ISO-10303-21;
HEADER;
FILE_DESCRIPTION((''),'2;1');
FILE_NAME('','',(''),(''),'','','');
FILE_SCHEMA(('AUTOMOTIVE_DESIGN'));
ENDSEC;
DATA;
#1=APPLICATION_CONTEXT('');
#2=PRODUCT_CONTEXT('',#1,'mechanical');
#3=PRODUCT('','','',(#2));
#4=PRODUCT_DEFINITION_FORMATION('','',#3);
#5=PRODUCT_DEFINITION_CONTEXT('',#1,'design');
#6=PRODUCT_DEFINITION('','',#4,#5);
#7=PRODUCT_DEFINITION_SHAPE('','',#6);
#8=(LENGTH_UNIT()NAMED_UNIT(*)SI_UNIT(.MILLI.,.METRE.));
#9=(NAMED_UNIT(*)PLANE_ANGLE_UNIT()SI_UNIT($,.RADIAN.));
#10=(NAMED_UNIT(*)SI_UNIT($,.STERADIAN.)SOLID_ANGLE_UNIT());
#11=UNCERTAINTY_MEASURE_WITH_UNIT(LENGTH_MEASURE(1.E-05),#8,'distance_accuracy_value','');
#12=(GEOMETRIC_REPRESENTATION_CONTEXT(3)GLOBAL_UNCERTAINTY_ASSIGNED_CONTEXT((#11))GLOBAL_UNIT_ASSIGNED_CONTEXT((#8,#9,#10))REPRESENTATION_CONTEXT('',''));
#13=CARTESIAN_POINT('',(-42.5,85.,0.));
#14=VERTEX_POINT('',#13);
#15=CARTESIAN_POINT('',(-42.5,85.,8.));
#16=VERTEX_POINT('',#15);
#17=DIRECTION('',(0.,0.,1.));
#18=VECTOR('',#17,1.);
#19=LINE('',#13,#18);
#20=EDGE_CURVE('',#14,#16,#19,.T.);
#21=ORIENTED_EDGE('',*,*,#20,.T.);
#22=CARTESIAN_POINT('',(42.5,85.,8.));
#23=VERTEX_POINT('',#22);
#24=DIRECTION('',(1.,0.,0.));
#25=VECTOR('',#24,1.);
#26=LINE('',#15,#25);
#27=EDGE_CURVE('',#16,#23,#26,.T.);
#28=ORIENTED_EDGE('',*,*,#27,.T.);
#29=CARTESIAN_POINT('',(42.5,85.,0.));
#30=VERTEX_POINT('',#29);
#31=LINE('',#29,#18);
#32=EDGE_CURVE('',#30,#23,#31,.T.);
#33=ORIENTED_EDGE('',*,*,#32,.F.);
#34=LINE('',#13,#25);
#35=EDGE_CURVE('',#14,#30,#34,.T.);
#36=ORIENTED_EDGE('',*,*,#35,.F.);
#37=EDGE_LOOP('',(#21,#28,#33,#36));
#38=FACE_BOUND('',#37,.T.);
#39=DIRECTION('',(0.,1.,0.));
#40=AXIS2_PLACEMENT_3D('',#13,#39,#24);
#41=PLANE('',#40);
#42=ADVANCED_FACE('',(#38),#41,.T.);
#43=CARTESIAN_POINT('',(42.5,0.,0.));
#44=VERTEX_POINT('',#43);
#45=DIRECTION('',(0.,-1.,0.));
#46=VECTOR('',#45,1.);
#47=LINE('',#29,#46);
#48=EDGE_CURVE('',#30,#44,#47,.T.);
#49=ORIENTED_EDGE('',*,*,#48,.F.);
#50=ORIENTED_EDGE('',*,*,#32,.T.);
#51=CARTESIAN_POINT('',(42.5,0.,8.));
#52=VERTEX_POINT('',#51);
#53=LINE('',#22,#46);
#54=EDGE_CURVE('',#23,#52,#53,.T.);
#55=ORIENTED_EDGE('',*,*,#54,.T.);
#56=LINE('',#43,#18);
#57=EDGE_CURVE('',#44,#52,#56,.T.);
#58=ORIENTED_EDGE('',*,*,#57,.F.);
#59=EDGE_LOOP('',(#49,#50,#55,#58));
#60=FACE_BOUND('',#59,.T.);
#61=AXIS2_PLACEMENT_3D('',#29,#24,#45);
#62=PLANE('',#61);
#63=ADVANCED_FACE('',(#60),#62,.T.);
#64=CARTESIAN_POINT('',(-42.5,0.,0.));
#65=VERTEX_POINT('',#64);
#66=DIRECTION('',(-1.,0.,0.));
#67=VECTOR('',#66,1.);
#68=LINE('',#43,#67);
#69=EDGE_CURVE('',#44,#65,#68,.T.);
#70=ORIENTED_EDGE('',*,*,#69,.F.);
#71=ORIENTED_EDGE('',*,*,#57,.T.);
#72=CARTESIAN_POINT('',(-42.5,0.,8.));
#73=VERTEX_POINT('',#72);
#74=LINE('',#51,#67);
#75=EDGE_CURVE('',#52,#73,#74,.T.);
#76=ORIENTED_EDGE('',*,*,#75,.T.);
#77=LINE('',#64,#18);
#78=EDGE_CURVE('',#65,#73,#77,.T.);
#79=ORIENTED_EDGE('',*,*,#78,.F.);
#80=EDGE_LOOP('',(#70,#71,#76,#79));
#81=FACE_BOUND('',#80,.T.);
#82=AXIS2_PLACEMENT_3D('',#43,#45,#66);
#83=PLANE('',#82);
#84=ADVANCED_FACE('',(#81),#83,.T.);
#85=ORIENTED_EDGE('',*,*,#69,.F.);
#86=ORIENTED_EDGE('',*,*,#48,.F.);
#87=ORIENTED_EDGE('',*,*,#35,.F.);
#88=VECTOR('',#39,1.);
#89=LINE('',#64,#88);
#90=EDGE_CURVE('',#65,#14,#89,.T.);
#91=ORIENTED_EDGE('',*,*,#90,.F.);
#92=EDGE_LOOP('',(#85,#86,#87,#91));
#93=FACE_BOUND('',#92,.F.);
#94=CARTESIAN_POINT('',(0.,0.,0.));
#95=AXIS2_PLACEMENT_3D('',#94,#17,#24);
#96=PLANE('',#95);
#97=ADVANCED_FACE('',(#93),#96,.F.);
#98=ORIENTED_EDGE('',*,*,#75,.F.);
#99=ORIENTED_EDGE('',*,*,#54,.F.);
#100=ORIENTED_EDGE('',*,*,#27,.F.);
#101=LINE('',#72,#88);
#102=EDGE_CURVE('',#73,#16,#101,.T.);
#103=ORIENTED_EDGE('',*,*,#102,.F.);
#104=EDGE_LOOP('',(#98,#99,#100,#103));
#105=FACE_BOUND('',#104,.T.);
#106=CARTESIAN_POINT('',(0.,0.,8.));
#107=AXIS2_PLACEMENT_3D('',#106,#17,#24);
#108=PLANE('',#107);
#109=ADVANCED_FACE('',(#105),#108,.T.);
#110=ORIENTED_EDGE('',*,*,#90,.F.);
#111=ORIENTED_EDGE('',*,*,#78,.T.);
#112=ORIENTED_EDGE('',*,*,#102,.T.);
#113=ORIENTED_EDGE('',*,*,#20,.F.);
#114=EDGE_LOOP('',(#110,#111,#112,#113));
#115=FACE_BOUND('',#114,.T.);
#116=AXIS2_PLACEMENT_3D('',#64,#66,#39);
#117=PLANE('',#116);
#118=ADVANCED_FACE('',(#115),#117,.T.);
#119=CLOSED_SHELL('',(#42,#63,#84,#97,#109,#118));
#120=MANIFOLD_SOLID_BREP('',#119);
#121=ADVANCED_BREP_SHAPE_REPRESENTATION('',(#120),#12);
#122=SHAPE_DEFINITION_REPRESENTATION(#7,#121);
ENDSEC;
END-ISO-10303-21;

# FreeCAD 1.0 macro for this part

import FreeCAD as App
import Part
import Sketcher
Q = App.Units.Quantity


def add_polygon(sketch, points):
    """Adds a closed chain of lines whose ends are joined by coincident constraints."""
    first, n = sketch.GeometryCount, len(points)
    for a, b in zip(points, points[1:] + points[:1]):
        sketch.addGeometry(Part.LineSegment(App.Vector(*a, 0), App.Vector(*b, 0)), False)
    for i in range(n):
        sketch.addConstraint(Sketcher.Constraint("Coincident", first + i, 2, first + (i + 1) % n, 1))

doc = App.newDocument("Part")
body = doc.addObject("PartDesign::Body", "Body")

sketch1 = doc.addObject("Sketcher::SketchObject", "Sketch")
body.addObject(sketch1)
sketch1.AttachmentSupport = (doc.XY_Plane, [""])
sketch1.MapMode = "FlatFace"
add_polygon(sketch1, [(42, 85), (-42, 85), (-42, 0), (42, 0)])
sketch1.addConstraint(Sketcher.Constraint("Horizontal", 0))
sketch1.addConstraint(Sketcher.Constraint("Vertical", 1))
sketch1.addConstraint(Sketcher.Constraint("Horizontal", 2))
sketch1.addConstraint(Sketcher.Constraint("Vertical", 3))
sketch1.addConstraint(Sketcher.Constraint("Symmetric", 1, 2, 2, 2, -1, 1))
sketch1.addConstraint(Sketcher.Constraint("Equal", 2, 1))
sketch1.addConstraint(Sketcher.Constraint("DistanceX", 0, 2, 0, 1, Q("85 mm")))
pad1 = doc.addObject("PartDesign::Pad", "Pad")
body.addObject(pad1)
pad1.Profile = sketch1
pad1.Length = 8

doc.recompute()
